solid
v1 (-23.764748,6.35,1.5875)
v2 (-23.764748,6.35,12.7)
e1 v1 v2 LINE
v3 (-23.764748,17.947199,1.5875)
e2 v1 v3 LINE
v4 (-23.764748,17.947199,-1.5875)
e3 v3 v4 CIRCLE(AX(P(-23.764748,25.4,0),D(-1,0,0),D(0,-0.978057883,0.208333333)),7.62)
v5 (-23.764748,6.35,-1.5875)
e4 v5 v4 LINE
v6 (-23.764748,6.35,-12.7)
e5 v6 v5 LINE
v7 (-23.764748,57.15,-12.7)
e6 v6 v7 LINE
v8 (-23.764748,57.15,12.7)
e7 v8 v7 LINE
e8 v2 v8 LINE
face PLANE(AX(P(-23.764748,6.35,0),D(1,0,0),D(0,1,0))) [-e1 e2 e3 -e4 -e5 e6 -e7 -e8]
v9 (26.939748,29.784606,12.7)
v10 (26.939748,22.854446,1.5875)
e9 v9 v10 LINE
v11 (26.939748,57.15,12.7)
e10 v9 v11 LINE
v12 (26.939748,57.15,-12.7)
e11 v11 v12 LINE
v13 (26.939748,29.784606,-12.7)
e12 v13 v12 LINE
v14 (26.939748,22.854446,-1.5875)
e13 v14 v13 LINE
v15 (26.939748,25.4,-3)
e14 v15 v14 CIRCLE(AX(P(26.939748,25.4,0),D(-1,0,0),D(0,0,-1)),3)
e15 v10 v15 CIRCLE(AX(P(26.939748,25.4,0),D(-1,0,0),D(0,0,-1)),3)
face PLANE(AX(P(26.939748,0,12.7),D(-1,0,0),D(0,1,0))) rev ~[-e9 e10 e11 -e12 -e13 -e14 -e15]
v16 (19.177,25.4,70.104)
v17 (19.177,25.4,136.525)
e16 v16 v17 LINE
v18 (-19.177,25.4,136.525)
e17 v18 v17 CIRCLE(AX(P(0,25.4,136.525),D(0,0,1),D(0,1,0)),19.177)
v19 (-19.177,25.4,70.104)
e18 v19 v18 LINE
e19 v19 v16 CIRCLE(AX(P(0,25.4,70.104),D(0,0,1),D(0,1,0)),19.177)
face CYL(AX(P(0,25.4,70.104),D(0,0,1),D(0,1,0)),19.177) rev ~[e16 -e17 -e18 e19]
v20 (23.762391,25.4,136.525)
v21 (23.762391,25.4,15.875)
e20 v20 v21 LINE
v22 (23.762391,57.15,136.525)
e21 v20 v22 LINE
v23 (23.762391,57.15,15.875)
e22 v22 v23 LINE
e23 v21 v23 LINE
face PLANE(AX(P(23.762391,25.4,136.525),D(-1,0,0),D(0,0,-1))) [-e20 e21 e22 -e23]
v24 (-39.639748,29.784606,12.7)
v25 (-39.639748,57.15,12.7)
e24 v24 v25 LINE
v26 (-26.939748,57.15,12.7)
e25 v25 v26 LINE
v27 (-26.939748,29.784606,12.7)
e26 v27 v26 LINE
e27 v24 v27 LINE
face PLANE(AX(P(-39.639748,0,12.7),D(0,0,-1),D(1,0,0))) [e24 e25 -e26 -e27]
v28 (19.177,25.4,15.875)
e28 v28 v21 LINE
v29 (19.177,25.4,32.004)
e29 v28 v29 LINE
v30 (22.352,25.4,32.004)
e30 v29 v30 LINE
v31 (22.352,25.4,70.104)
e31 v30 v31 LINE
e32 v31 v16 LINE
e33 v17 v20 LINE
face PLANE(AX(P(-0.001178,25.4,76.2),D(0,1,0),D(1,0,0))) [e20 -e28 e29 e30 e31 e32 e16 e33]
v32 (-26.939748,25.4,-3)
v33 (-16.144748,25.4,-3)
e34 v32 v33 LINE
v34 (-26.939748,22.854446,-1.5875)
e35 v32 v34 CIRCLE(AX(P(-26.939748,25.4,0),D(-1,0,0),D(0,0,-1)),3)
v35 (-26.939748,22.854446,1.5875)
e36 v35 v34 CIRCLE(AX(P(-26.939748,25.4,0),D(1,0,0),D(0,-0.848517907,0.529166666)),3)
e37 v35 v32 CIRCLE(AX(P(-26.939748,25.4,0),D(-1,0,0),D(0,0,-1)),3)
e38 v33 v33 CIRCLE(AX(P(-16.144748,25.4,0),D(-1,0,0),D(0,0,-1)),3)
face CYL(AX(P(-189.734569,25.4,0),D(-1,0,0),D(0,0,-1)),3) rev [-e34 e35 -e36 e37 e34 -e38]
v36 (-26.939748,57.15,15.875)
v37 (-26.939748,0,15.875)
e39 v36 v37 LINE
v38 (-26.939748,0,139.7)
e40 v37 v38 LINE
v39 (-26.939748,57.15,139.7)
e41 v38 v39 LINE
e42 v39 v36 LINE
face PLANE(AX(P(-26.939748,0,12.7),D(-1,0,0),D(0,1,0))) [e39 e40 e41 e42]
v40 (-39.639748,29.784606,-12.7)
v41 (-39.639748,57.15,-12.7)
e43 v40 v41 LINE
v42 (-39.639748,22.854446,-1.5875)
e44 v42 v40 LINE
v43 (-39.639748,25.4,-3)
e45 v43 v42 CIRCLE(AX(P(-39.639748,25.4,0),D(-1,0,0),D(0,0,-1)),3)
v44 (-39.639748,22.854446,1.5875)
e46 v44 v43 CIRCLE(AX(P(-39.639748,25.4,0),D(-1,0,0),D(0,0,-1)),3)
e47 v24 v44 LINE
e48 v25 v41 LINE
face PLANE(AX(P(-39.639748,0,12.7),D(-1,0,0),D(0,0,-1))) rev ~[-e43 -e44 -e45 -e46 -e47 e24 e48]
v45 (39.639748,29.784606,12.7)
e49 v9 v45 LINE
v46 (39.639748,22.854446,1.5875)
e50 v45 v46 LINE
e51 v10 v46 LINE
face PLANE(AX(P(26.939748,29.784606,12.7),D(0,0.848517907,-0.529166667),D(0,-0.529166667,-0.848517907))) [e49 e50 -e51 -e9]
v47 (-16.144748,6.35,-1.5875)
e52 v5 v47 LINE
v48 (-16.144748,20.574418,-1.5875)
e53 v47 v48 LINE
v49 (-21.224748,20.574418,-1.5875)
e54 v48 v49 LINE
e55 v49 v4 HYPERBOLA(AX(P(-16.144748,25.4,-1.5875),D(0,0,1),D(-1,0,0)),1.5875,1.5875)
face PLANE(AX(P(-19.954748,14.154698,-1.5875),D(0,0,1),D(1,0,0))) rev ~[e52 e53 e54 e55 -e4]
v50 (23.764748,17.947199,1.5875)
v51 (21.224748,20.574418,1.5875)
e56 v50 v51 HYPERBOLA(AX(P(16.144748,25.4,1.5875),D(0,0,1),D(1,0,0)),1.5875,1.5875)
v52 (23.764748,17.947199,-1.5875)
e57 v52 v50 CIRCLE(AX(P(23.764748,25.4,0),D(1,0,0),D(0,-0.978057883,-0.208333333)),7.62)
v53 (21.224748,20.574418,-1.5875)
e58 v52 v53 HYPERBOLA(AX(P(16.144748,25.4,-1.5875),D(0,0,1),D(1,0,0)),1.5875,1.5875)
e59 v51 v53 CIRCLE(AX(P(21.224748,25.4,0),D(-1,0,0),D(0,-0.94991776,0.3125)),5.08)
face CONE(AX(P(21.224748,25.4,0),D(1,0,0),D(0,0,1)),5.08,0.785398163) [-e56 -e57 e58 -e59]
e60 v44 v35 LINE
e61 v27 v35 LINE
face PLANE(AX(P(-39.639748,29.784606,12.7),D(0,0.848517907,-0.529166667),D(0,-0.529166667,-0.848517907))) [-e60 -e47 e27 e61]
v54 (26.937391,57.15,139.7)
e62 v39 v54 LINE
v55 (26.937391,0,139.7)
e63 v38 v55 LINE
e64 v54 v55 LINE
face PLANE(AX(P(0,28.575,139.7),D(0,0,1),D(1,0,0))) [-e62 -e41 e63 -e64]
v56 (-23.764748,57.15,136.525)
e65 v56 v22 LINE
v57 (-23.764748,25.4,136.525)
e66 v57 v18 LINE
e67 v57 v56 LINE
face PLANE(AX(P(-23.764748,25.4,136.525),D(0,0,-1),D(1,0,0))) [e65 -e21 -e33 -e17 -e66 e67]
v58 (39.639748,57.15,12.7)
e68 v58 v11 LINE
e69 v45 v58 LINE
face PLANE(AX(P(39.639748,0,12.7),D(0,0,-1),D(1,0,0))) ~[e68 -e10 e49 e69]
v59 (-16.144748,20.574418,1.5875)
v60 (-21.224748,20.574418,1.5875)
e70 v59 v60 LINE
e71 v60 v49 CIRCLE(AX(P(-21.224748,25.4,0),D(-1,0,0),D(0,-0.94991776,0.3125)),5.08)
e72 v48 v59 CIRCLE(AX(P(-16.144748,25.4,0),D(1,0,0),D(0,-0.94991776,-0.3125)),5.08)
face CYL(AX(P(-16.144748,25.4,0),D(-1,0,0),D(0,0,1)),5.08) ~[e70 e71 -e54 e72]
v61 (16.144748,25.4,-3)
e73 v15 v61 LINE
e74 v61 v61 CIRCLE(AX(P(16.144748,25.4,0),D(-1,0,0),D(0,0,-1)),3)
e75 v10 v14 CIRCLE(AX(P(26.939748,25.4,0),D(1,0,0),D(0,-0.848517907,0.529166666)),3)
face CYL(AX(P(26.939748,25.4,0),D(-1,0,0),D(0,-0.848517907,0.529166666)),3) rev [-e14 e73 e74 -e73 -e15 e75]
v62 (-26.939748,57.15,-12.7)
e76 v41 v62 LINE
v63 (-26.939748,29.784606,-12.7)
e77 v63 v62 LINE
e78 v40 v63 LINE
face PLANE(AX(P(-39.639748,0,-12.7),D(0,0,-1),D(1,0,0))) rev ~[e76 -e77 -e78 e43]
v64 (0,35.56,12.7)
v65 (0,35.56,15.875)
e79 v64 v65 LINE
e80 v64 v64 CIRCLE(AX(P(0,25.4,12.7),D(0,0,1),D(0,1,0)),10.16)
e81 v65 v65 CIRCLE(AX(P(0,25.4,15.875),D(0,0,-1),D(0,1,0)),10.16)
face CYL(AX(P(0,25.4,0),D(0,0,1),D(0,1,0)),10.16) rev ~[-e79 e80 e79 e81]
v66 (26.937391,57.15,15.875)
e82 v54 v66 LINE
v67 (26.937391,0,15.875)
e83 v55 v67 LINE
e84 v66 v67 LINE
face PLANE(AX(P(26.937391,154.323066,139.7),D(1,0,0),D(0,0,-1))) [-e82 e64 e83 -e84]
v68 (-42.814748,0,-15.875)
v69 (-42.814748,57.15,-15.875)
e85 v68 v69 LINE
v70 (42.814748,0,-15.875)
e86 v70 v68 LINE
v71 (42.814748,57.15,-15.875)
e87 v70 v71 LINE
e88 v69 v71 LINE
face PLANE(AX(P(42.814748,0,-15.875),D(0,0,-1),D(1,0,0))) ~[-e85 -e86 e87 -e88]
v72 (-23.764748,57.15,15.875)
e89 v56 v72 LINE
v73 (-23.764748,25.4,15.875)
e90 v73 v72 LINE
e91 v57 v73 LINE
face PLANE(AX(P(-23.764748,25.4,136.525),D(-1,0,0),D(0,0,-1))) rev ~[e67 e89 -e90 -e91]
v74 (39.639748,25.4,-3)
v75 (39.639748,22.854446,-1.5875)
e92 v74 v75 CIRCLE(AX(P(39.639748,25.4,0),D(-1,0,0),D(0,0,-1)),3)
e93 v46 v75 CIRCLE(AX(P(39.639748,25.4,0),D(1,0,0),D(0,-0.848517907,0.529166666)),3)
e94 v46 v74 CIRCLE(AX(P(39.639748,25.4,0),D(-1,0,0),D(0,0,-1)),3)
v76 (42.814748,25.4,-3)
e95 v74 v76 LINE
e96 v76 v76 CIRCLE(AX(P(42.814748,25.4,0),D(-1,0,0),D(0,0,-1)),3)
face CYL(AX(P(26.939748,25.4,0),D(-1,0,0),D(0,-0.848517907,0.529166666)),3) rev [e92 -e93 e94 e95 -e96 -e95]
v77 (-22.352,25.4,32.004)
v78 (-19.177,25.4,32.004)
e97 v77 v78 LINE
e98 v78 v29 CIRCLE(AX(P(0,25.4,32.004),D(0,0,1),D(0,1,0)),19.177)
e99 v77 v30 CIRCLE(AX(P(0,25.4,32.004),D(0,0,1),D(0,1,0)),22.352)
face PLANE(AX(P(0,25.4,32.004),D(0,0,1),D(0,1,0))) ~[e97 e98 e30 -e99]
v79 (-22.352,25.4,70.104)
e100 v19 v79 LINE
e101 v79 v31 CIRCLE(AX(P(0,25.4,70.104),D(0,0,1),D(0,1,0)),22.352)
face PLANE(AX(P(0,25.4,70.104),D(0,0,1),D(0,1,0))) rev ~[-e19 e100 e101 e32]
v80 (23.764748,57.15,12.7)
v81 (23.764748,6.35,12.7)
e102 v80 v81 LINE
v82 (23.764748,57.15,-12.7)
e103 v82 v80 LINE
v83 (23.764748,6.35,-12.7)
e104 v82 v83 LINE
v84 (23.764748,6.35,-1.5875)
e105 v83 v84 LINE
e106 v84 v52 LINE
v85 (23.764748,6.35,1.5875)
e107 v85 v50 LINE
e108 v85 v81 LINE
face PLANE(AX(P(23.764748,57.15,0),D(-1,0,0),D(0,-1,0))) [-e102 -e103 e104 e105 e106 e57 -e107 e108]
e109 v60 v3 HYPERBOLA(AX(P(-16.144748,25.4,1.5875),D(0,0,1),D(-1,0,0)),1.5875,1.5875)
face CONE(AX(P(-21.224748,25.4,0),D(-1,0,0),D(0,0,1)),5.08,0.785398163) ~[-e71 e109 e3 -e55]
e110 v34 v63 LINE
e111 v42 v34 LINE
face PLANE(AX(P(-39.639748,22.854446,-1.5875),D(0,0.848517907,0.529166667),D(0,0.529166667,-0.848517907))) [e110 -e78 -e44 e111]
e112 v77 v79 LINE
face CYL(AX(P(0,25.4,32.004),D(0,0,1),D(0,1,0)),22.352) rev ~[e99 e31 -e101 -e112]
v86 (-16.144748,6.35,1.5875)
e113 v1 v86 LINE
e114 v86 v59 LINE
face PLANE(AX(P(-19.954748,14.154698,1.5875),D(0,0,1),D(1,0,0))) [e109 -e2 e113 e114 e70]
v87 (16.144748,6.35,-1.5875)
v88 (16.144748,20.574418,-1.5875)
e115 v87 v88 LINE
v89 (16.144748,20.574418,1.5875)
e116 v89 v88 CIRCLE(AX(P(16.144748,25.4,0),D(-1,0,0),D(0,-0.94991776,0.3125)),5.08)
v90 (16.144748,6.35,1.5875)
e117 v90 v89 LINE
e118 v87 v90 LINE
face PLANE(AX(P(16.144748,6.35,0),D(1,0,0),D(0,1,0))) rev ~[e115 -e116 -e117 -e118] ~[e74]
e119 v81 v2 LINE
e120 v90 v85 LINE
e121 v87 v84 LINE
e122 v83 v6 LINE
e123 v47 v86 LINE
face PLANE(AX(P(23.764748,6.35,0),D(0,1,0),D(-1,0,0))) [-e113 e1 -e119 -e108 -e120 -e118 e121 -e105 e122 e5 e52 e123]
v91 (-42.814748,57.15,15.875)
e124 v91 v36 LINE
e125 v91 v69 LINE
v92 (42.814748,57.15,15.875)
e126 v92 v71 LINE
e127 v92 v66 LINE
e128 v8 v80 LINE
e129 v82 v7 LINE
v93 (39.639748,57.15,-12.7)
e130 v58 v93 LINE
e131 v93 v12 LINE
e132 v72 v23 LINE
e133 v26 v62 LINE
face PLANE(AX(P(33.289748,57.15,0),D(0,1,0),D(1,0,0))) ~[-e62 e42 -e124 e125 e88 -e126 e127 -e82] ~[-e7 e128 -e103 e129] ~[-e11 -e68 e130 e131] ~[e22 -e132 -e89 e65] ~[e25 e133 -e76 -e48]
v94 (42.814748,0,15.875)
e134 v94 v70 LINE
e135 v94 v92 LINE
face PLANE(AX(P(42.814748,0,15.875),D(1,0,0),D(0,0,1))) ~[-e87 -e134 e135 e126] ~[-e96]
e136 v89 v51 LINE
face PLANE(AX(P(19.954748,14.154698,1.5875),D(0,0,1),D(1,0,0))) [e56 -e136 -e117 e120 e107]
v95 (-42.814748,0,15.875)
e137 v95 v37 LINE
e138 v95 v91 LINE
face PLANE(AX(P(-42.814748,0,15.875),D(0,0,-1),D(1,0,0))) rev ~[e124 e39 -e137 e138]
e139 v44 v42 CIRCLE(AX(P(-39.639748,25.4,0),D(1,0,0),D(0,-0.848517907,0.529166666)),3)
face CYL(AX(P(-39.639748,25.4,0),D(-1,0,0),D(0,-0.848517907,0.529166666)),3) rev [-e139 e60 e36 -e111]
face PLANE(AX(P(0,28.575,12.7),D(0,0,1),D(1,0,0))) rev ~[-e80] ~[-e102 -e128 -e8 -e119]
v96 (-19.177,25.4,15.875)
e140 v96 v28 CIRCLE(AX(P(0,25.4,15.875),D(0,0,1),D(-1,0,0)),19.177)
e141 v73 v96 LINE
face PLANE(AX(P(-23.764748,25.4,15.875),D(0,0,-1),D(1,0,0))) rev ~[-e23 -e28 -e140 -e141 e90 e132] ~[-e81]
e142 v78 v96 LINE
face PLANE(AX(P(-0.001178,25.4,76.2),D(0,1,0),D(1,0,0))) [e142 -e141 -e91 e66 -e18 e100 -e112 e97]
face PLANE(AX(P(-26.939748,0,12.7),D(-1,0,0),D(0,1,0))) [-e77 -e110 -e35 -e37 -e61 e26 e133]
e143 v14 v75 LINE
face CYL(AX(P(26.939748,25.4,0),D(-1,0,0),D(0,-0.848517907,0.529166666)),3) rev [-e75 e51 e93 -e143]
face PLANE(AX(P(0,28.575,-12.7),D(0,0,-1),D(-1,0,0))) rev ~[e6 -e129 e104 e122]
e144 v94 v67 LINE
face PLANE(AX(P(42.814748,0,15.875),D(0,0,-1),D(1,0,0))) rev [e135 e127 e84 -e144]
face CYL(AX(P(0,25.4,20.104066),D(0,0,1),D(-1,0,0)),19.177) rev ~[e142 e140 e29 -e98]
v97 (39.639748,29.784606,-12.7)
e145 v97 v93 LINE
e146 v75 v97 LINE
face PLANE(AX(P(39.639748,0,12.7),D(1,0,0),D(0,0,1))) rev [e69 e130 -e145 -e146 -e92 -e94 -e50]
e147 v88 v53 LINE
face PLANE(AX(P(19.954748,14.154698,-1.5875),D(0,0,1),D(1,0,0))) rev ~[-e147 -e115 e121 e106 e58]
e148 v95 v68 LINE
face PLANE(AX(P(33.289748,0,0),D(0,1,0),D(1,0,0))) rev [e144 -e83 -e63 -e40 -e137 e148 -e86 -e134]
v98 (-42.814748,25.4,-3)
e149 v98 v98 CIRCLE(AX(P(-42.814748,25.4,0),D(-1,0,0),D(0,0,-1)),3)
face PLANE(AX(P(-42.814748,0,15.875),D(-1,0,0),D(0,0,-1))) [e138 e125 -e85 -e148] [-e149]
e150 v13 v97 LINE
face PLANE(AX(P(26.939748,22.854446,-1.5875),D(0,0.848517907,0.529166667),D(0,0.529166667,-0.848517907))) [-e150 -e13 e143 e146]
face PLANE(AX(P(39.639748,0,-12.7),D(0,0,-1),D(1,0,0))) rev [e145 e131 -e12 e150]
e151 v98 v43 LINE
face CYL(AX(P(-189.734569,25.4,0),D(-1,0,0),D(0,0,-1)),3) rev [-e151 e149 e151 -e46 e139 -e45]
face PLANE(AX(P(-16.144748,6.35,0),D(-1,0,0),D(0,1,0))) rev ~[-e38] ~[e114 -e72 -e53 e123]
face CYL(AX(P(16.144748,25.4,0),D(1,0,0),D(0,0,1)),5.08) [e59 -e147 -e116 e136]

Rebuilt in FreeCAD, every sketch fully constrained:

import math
import FreeCAD as App
import Part
import Sketcher
Q = App.Units.Quantity

doc = App.newDocument("Part")
body = doc.addObject("PartDesign::Body", "Body")

sketch1 = doc.addObject("Sketcher::SketchObject", "Sketch")
body.addObject(sketch1)
sketch1.AttachmentSupport = (doc.XY_Plane, [""])
sketch1.MapMode = "FlatFace"
sketch1.addGeometry(Part.LineSegment(App.Vector(-26.9, 0, 0), App.Vector(26.9, 0, 0)), False)
sketch1.addGeometry(Part.LineSegment(App.Vector(26.9, 0, 0), App.Vector(26.9, 57.1, 0)), False)
sketch1.addGeometry(Part.LineSegment(App.Vector(26.9, 57.1, 0), App.Vector(23.8, 57.1, 0)), False)
sketch1.addGeometry(Part.LineSegment(App.Vector(23.8, 57.1, 0), App.Vector(23.8, 6.3, 0)), False)
sketch1.addGeometry(Part.LineSegment(App.Vector(23.8, 6.3, 0), App.Vector(-23.8, 6.3, 0)), False)
sketch1.addGeometry(Part.LineSegment(App.Vector(-23.8, 6.3, 0), App.Vector(-23.8, 57.1, 0)), False)
sketch1.addGeometry(Part.LineSegment(App.Vector(-23.8, 57.1, 0), App.Vector(-26.9, 57.1, 0)), False)
sketch1.addGeometry(Part.LineSegment(App.Vector(-26.9, 57.1, 0), App.Vector(-26.9, 0, 0)), False)
sketch1.addConstraint(Sketcher.Constraint("Coincident", 0, 2, 1, 1))
sketch1.addConstraint(Sketcher.Constraint("Coincident", 1, 2, 2, 1))
sketch1.addConstraint(Sketcher.Constraint("Coincident", 2, 2, 3, 1))
sketch1.addConstraint(Sketcher.Constraint("Coincident", 3, 2, 4, 1))
sketch1.addConstraint(Sketcher.Constraint("Coincident", 4, 2, 5, 1))
sketch1.addConstraint(Sketcher.Constraint("Coincident", 5, 2, 6, 1))
sketch1.addConstraint(Sketcher.Constraint("Coincident", 6, 2, 7, 1))
sketch1.addConstraint(Sketcher.Constraint("Coincident", 7, 2, 0, 1))
sketch1.addConstraint(Sketcher.Constraint("Horizontal", 0))
sketch1.addConstraint(Sketcher.Constraint("Vertical", 1))
sketch1.addConstraint(Sketcher.Constraint("Horizontal", 2))
sketch1.addConstraint(Sketcher.Constraint("Vertical", 3))
sketch1.addConstraint(Sketcher.Constraint("Horizontal", 4))
sketch1.addConstraint(Sketcher.Constraint("Vertical", 5))
sketch1.addConstraint(Sketcher.Constraint("Horizontal", 6))
sketch1.addConstraint(Sketcher.Constraint("Vertical", 7))
sketch1.addConstraint(Sketcher.Constraint("Symmetric", 0, 2, 7, 2, -1, 1))
sketch1.addConstraint(Sketcher.Constraint("Symmetric", 2, 2, 5, 2, -2))
sketch1.addConstraint(Sketcher.Constraint("DistanceY", 3, 2, 3, 1, Q("2 in")))
sketch1.addConstraint(Sketcher.Constraint("DistanceY", 1, 1, 1, 2, Q("2.25 in")))
sketch1.addConstraint(Sketcher.Constraint("DistanceX", 2, 2, 2, 1, Q("0.125 in")))
sketch1.addConstraint(Sketcher.Constraint("DistanceX", 0, 1, 0, 2, 53.879496))
pad1 = doc.addObject("PartDesign::Pad", "Pad")
body.addObject(pad1)
pad1.Profile = sketch1
pad1.Length = Q("1 in")
pad1.Midplane = True

sketch2 = doc.addObject("Sketcher::SketchObject", "Sketch001")
body.addObject(sketch2)
sketch2.AttachmentSupport = (doc.XY_Plane, [""])
sketch2.MapMode = "FlatFace"
sketch2.AttachmentOffset = App.Placement(App.Vector(0, 0, -0.5 * 25.4), App.Rotation())
sketch2.addGeometry(Part.LineSegment(App.Vector(27, 57, 0), App.Vector(27, 0, 0)), False)
sketch2.addGeometry(Part.LineSegment(App.Vector(27, 0, 0), App.Vector(-27, 0, 0)), False)
sketch2.addGeometry(Part.LineSegment(App.Vector(-27, 0, 0), App.Vector(-27, 57, 0)), False)
sketch2.addGeometry(Part.LineSegment(App.Vector(-27, 57, 0), App.Vector(27, 57, 0)), False)
sketch2.addConstraint(Sketcher.Constraint("Coincident", 0, 2, 1, 1))
sketch2.addConstraint(Sketcher.Constraint("Coincident", 1, 2, 2, 1))
sketch2.addConstraint(Sketcher.Constraint("Coincident", 2, 2, 3, 1))
sketch2.addConstraint(Sketcher.Constraint("Coincident", 3, 2, 0, 1))
sketch2.addConstraint(Sketcher.Constraint("Vertical", 0))
sketch2.addConstraint(Sketcher.Constraint("Horizontal", 1))
sketch2.addConstraint(Sketcher.Constraint("Vertical", 2))
sketch2.addConstraint(Sketcher.Constraint("Horizontal", 3))
sketch2.addConstraint(Sketcher.Constraint("Symmetric", 0, 2, 1, 2, -1, 1))
sketch2.addConstraint(Sketcher.Constraint("DistanceY", 0, 2, 0, 1, Q("2.25 in")))
sketch2.addConstraint(Sketcher.Constraint("DistanceX", 1, 2, 1, 1, 53.879496))
pad2 = doc.addObject("PartDesign::Pad", "Pad001")
body.addObject(pad2)
pad2.Profile = sketch2
pad2.Length = Q("0.125 in")
pad2.Reversed = True

sketch3 = doc.addObject("Sketcher::SketchObject", "Sketch002")
body.addObject(sketch3)
sketch3.AttachmentSupport = (doc.XY_Plane, [""])
sketch3.MapMode = "FlatFace"
sketch3.addGeometry(Part.LineSegment(App.Vector(-23.8, 25.4, 0), App.Vector(-16.1, 25.4, 0)), False)
sketch3.addGeometry(Part.LineSegment(App.Vector(-16.1, 25.4, 0), App.Vector(-16.1, 30.5, 0)), False)
sketch3.addGeometry(Part.LineSegment(App.Vector(-16.1, 30.5, 0), App.Vector(-21.2, 30.5, 0)), False)
sketch3.addGeometry(Part.LineSegment(App.Vector(-21.2, 30.5, 0), App.Vector(-23.8, 33, 0)), False)
sketch3.addGeometry(Part.LineSegment(App.Vector(-23.8, 33, 0), App.Vector(-23.8, 25.4, 0)), False)
sketch3.addGeometry(Part.LineSegment(App.Vector(23.8, 25.4, 0), App.Vector(23.8, 33, 0)), False)
sketch3.addGeometry(Part.LineSegment(App.Vector(23.8, 33, 0), App.Vector(21.2, 30.5, 0)), False)
sketch3.addGeometry(Part.LineSegment(App.Vector(21.2, 30.5, 0), App.Vector(16.1, 30.5, 0)), False)
sketch3.addGeometry(Part.LineSegment(App.Vector(16.1, 30.5, 0), App.Vector(16.1, 25.4, 0)), False)
sketch3.addGeometry(Part.LineSegment(App.Vector(16.1, 25.4, 0), App.Vector(23.8, 25.4, 0)), False)
sketch3.addGeometry(Part.LineSegment(App.Vector(-23.8, 25.4, 0), App.Vector(23.8, 25.4, 0)), True)
sketch3.addConstraint(Sketcher.Constraint("Coincident", 0, 2, 1, 1))
sketch3.addConstraint(Sketcher.Constraint("Coincident", 1, 2, 2, 1))
sketch3.addConstraint(Sketcher.Constraint("Coincident", 2, 2, 3, 1))
sketch3.addConstraint(Sketcher.Constraint("Coincident", 3, 2, 4, 1))
sketch3.addConstraint(Sketcher.Constraint("Coincident", 4, 2, 0, 1))
sketch3.addConstraint(Sketcher.Constraint("Coincident", 5, 2, 6, 1))
sketch3.addConstraint(Sketcher.Constraint("Coincident", 6, 2, 7, 1))
sketch3.addConstraint(Sketcher.Constraint("Coincident", 7, 2, 8, 1))
sketch3.addConstraint(Sketcher.Constraint("Coincident", 8, 2, 9, 1))
sketch3.addConstraint(Sketcher.Constraint("Coincident", 9, 2, 5, 1))
sketch3.addConstraint(Sketcher.Constraint("Horizontal", 0))
sketch3.addConstraint(Sketcher.Constraint("Vertical", 1))
sketch3.addConstraint(Sketcher.Constraint("Horizontal", 2))
sketch3.addConstraint(Sketcher.Constraint("Vertical", 4))
sketch3.addConstraint(Sketcher.Constraint("Vertical", 5))
sketch3.addConstraint(Sketcher.Constraint("Horizontal", 7))
sketch3.addConstraint(Sketcher.Constraint("Vertical", 8))
sketch3.addConstraint(Sketcher.Constraint("Horizontal", 9))
sketch3.addConstraint(Sketcher.Constraint("Horizontal", 10))
sketch3.addConstraint(Sketcher.Constraint("Coincident", 10, 1, 4, 2))
sketch3.addConstraint(Sketcher.Constraint("Coincident", 10, 2, 9, 2))
sketch3.addConstraint(Sketcher.Constraint("Symmetric", 3, 2, 5, 2, -2))
sketch3.addConstraint(Sketcher.Constraint("Symmetric", 2, 2, 6, 2, -2))
sketch3.addConstraint(Sketcher.Constraint("Perpendicular", 3, 6))
sketch3.addConstraint(Sketcher.Constraint("Equal", 2, 7))
sketch3.addConstraint(Sketcher.Constraint("Equal", 7, 1))
sketch3.addConstraint(Sketcher.Constraint("DistanceX", 0, 1, 0, 2, Q("0.3 in")))
sketch3.addConstraint(Sketcher.Constraint("DistanceX", 2, 2, 2, 1, Q("0.2 in")))
sketch3.addConstraint(Sketcher.Constraint("DistanceY", -1, 1, 0, 2, Q("1 in")))
sketch3.addConstraint(Sketcher.Constraint("DistanceX", 10, 1, 10, 2, 47.529496))
revolution = doc.addObject("PartDesign::Revolution", "Revolution")
body.addObject(revolution)
revolution.Profile = sketch3
revolution.ReferenceAxis = (sketch3, ["Axis0"])
revolution.Angle = 360

sketch4 = doc.addObject("Sketcher::SketchObject", "Sketch003")
body.addObject(sketch4)
sketch4.AttachmentSupport = (doc.YZ_Plane, [""])
sketch4.MapMode = "FlatFace"
sketch4.addGeometry(Part.Circle(App.Vector(25.4, 0, 0), App.Vector(0, 0, 1), 3), False)
sketch4.addConstraint(Sketcher.Constraint("PointOnObject", 0, 3, -1))
sketch4.addConstraint(Sketcher.Constraint("DistanceX", -1, 1, 0, 3, Q("1 in")))
sketch4.addConstraint(Sketcher.Constraint("Diameter", 0, 6.0))
pocket1 = doc.addObject("PartDesign::Pocket", "Pocket")
body.addObject(pocket1)
pocket1.Profile = sketch4
pocket1.Type = "ThroughAll"
pocket1.Midplane = True

sketch5 = doc.addObject("Sketcher::SketchObject", "Sketch004")
body.addObject(sketch5)
sketch5.AttachmentSupport = (doc.XZ_Plane, [""])
sketch5.MapMode = "FlatFace"
sketch5.addGeometry(Part.LineSegment(App.Vector(-26.9, -15.9, 0), App.Vector(-26.9, -41.3, 0)), False)
sketch5.addGeometry(Part.LineSegment(App.Vector(-26.9, -41.3, 0), App.Vector(26.9, -41.3, 0)), False)
sketch5.addGeometry(Part.LineSegment(App.Vector(26.9, -41.3, 0), App.Vector(26.9, -15.9, 0)), False)
sketch5.addGeometry(Part.LineSegment(App.Vector(26.9, -15.9, 0), App.Vector(-26.9, -15.9, 0)), False)
sketch5.addGeometry(Part.Circle(App.Vector(-17.5, -28.6, 0), App.Vector(0, 0, 1), 3.5), False)
sketch5.addGeometry(Part.Circle(App.Vector(7.9, -28.6, 0), App.Vector(0, 0, 1), 3.5), False)
sketch5.addConstraint(Sketcher.Constraint("Coincident", 0, 2, 1, 1))
sketch5.addConstraint(Sketcher.Constraint("Coincident", 1, 2, 2, 1))
sketch5.addConstraint(Sketcher.Constraint("Coincident", 2, 2, 3, 1))
sketch5.addConstraint(Sketcher.Constraint("Coincident", 3, 2, 0, 1))
sketch5.addConstraint(Sketcher.Constraint("Vertical", 0))
sketch5.addConstraint(Sketcher.Constraint("Horizontal", 1))
sketch5.addConstraint(Sketcher.Constraint("Vertical", 2))
sketch5.addConstraint(Sketcher.Constraint("Horizontal", 3))
sketch5.addConstraint(Sketcher.Constraint("Equal", 4, 5))
sketch5.addConstraint(Sketcher.Constraint("Horizontal", 4, 3, 5, 3))
sketch5.addConstraint(Sketcher.Constraint("DistanceY", 0, 2, 0, 1, Q("1 in")))
sketch5.addConstraint(Sketcher.Constraint("Diameter", 4, Q("0.275 in")))
sketch5.addConstraint(Sketcher.Constraint("DistanceX", 4, 3, 5, 3, Q("1 in")))
sketch5.addConstraint(Sketcher.Constraint("DistanceY", 0, 2, 4, 3, Q("0.5 in")))
sketch5.addConstraint(Sketcher.Constraint("DistanceX", 5, 3, 1, 2, Q("0.75 in")))
sketch5.addConstraint(Sketcher.Constraint("DistanceY", 4, 3, -1, 1, Q("1.125 in")))
sketch5.addConstraint(Sketcher.Constraint("DistanceX", 1, 1, 1, 2, 53.879496))
sketch5.addConstraint(Sketcher.Constraint("DistanceX", 0, 2, -1, 1, 26.939748))
pad3 = doc.addObject("PartDesign::Pad", "Pad002")
body.addObject(pad3)
pad3.Profile = sketch5
pad3.Length = Q("0.25 in")
pad3.Reversed = True

sketch6 = doc.addObject("Sketcher::SketchObject", "Sketch005")
body.addObject(sketch6)
sketch6.AttachmentSupport = (doc.XY_Plane, [""])
sketch6.MapMode = "FlatFace"
sketch6.addGeometry(Part.LineSegment(App.Vector(-24, 22, 0), App.Vector(-24, 6, 0)), False)
sketch6.addGeometry(Part.LineSegment(App.Vector(-24, 6, 0), App.Vector(-16, 6, 0)), False)
sketch6.addGeometry(Part.LineSegment(App.Vector(-16, 6, 0), App.Vector(-16, 22, 0)), False)
sketch6.addGeometry(Part.LineSegment(App.Vector(-16, 22, 0), App.Vector(-24, 22, 0)), False)
sketch6.addGeometry(Part.LineSegment(App.Vector(16, 22, 0), App.Vector(16, 6, 0)), False)
sketch6.addGeometry(Part.LineSegment(App.Vector(16, 6, 0), App.Vector(24, 6, 0)), False)
sketch6.addGeometry(Part.LineSegment(App.Vector(24, 6, 0), App.Vector(24, 22, 0)), False)
sketch6.addGeometry(Part.LineSegment(App.Vector(24, 22, 0), App.Vector(16, 22, 0)), False)
sketch6.addConstraint(Sketcher.Constraint("Coincident", 0, 2, 1, 1))
sketch6.addConstraint(Sketcher.Constraint("Coincident", 1, 2, 2, 1))
sketch6.addConstraint(Sketcher.Constraint("Coincident", 2, 2, 3, 1))
sketch6.addConstraint(Sketcher.Constraint("Coincident", 3, 2, 0, 1))
sketch6.addConstraint(Sketcher.Constraint("Coincident", 4, 2, 5, 1))
sketch6.addConstraint(Sketcher.Constraint("Coincident", 5, 2, 6, 1))
sketch6.addConstraint(Sketcher.Constraint("Coincident", 6, 2, 7, 1))
sketch6.addConstraint(Sketcher.Constraint("Coincident", 7, 2, 4, 1))
sketch6.addConstraint(Sketcher.Constraint("Vertical", 0))
sketch6.addConstraint(Sketcher.Constraint("Horizontal", 1))
sketch6.addConstraint(Sketcher.Constraint("Vertical", 2))
sketch6.addConstraint(Sketcher.Constraint("Horizontal", 3))
sketch6.addConstraint(Sketcher.Constraint("Vertical", 4))
sketch6.addConstraint(Sketcher.Constraint("Horizontal", 5))
sketch6.addConstraint(Sketcher.Constraint("Vertical", 6))
sketch6.addConstraint(Sketcher.Constraint("Horizontal", 7))
sketch6.addConstraint(Sketcher.Constraint("Symmetric", 1, 2, 4, 2, -2))
sketch6.addConstraint(Sketcher.Constraint("Symmetric", 3, 2, 6, 2, -2))
sketch6.addConstraint(Sketcher.Constraint("DistanceX", 1, 1, 1, 2, Q("0.3 in")))
sketch6.addConstraint(Sketcher.Constraint("DistanceY", -1, 1, 0, 2, Q("0.25 in")))
sketch6.addConstraint(Sketcher.Constraint("DistanceY", 0, 2, 0, 1, 15.609397))
sketch6.addConstraint(Sketcher.Constraint("DistanceX", 0, 2, -1, 1, 23.764748))
pad4 = doc.addObject("PartDesign::Pad", "Pad003")
body.addObject(pad4)
pad4.Profile = sketch6
pad4.Length = Q("0.125 in")
pad4.Midplane = True

sketch7 = doc.addObject("Sketcher::SketchObject", "Sketch006")
body.addObject(sketch7)
sketch7.AttachmentSupport = (doc.XY_Plane, [""])
sketch7.MapMode = "FlatFace"
sketch7.AttachmentOffset = App.Placement(App.Vector(0, 0, 0.5 * 25.4), App.Rotation())
sketch7.addGeometry(Part.LineSegment(App.Vector(-27, 57, 0), App.Vector(-27, 0, 0)), False)
sketch7.addGeometry(Part.LineSegment(App.Vector(-27, 0, 0), App.Vector(27, 0, 0)), False)
sketch7.addGeometry(Part.LineSegment(App.Vector(27, 0, 0), App.Vector(27, 57, 0)), False)
sketch7.addGeometry(Part.LineSegment(App.Vector(27, 57, 0), App.Vector(-27, 57, 0)), False)
sketch7.addConstraint(Sketcher.Constraint("Coincident", 0, 2, 1, 1))
sketch7.addConstraint(Sketcher.Constraint("Coincident", 1, 2, 2, 1))
sketch7.addConstraint(Sketcher.Constraint("Coincident", 2, 2, 3, 1))
sketch7.addConstraint(Sketcher.Constraint("Coincident", 3, 2, 0, 1))
sketch7.addConstraint(Sketcher.Constraint("Vertical", 0))
sketch7.addConstraint(Sketcher.Constraint("Horizontal", 1))
sketch7.addConstraint(Sketcher.Constraint("Vertical", 2))
sketch7.addConstraint(Sketcher.Constraint("Horizontal", 3))
sketch7.addConstraint(Sketcher.Constraint("Symmetric", 0, 2, 1, 2, -1, 1))
sketch7.addConstraint(Sketcher.Constraint("DistanceY", 0, 2, 0, 1, Q("2.25 in")))
sketch7.addConstraint(Sketcher.Constraint("DistanceX", 1, 1, 1, 2, 53.879496))
pad5 = doc.addObject("PartDesign::Pad", "Pad004")
body.addObject(pad5)
pad5.Profile = sketch7
pad5.Length = Q("5 in")

sketch8 = doc.addObject("Sketcher::SketchObject", "Sketch007")
body.addObject(sketch8)
sketch8.AttachmentSupport = (doc.YZ_Plane, [""])
sketch8.MapMode = "FlatFace"
sketch8.addGeometry(Part.LineSegment(App.Vector(47.8, 70.1, 0), App.Vector(44.6, 70.1, 0)), False)
sketch8.addGeometry(Part.LineSegment(App.Vector(44.6, 70.1, 0), App.Vector(44.6, 136.5, 0)), False)
sketch8.addGeometry(Part.LineSegment(App.Vector(44.6, 136.5, 0), App.Vector(25.4, 136.5, 0)), False)
sketch8.addGeometry(Part.LineSegment(App.Vector(25.4, 136.5, 0), App.Vector(25.4, 0, 0)), False)
sketch8.addGeometry(Part.LineSegment(App.Vector(25.4, 0, 0), App.Vector(35.6, 0, 0)), False)
sketch8.addGeometry(Part.LineSegment(App.Vector(35.6, 0, 0), App.Vector(35.6, 20.1, 0)), False)
sketch8.addGeometry(Part.LineSegment(App.Vector(35.6, 20.1, 0), App.Vector(44.6, 20.1, 0)), False)
sketch8.addGeometry(Part.LineSegment(App.Vector(44.6, 20.1, 0), App.Vector(44.6, 32, 0)), False)
sketch8.addGeometry(Part.LineSegment(App.Vector(44.6, 32, 0), App.Vector(47.8, 32, 0)), False)
sketch8.addGeometry(Part.LineSegment(App.Vector(47.8, 32, 0), App.Vector(47.8, 70.1, 0)), False)
sketch8.addGeometry(Part.LineSegment(App.Vector(25.4, 0, 0), App.Vector(25.4, 136.5, 0)), True)
sketch8.addConstraint(Sketcher.Constraint("Coincident", 0, 2, 1, 1))
sketch8.addConstraint(Sketcher.Constraint("Coincident", 1, 2, 2, 1))
sketch8.addConstraint(Sketcher.Constraint("Coincident", 2, 2, 3, 1))
sketch8.addConstraint(Sketcher.Constraint("Coincident", 3, 2, 4, 1))
sketch8.addConstraint(Sketcher.Constraint("Coincident", 4, 2, 5, 1))
sketch8.addConstraint(Sketcher.Constraint("Coincident", 5, 2, 6, 1))
sketch8.addConstraint(Sketcher.Constraint("Coincident", 6, 2, 7, 1))
sketch8.addConstraint(Sketcher.Constraint("Coincident", 7, 2, 8, 1))
sketch8.addConstraint(Sketcher.Constraint("Coincident", 8, 2, 9, 1))
sketch8.addConstraint(Sketcher.Constraint("Coincident", 9, 2, 0, 1))
sketch8.addConstraint(Sketcher.Constraint("Horizontal", 0))
sketch8.addConstraint(Sketcher.Constraint("Vertical", 1))
sketch8.addConstraint(Sketcher.Constraint("Horizontal", 2))
sketch8.addConstraint(Sketcher.Constraint("Vertical", 3))
sketch8.addConstraint(Sketcher.Constraint("Horizontal", 4))
sketch8.addConstraint(Sketcher.Constraint("Vertical", 5))
sketch8.addConstraint(Sketcher.Constraint("Horizontal", 6))
sketch8.addConstraint(Sketcher.Constraint("Vertical", 7))
sketch8.addConstraint(Sketcher.Constraint("Horizontal", 8))
sketch8.addConstraint(Sketcher.Constraint("Vertical", 9))
sketch8.addConstraint(Sketcher.Constraint("Vertical", 10))
sketch8.addConstraint(Sketcher.Constraint("Coincident", 10, 1, 3, 2))
sketch8.addConstraint(Sketcher.Constraint("PointOnObject", 3, 2, -1))
sketch8.addConstraint(Sketcher.Constraint("Horizontal", 1, 2, 10, 2))
sketch8.addConstraint(Sketcher.Constraint("Vertical", 1, 2, 6, 2))
sketch8.addConstraint(Sketcher.Constraint("DistanceX", 4, 1, 4, 2, Q("0.4 in")))
sketch8.addConstraint(Sketcher.Constraint("DistanceY", 9, 1, 9, 2, Q("1.5 in")))
sketch8.addConstraint(Sketcher.Constraint("DistanceX", -1, 1, 2, 2, Q("1 in")))
sketch8.addConstraint(Sketcher.Constraint("DistanceX", 0, 2, 0, 1, Q("0.125 in")))
sketch8.addConstraint(Sketcher.Constraint("DistanceX", 2, 2, 2, 1, Q("0.755 in")))
sketch8.addConstraint(Sketcher.Constraint("DistanceY", 1, 1, 1, 2, Q("2.615 in")))
sketch8.addConstraint(Sketcher.Constraint("DistanceY", 3, 2, 3, 1, Q("5.375 in")))
sketch8.addConstraint(Sketcher.Constraint("DistanceY", 5, 1, 5, 2, 20.104066))
groove = doc.addObject("PartDesign::Groove", "Groove")
body.addObject(groove)
groove.Profile = sketch8
groove.ReferenceAxis = (sketch8, ["Axis0"])
groove.Angle = 360

sketch9 = doc.addObject("Sketcher::SketchObject", "Sketch008")
body.addObject(sketch9)
sketch9.AttachmentSupport = (doc.XZ_Plane, [""])
sketch9.MapMode = "FlatFace"
sketch9.addGeometry(Part.LineSegment(App.Vector(-26.9397, 15.4709, 0), App.Vector(-26.9397, 139.7, 0)), False)
sketch9.addGeometry(Part.LineSegment(App.Vector(-26.9397, 139.7, 0), App.Vector(-26.9421, 139.7, 0)), False)
sketch9.addGeometry(Part.LineSegment(App.Vector(-26.9421, 139.7, 0), App.Vector(-26.9421, 15.4709, 0)), False)
sketch9.addGeometry(Part.LineSegment(App.Vector(-26.9421, 15.4709, 0), App.Vector(-26.9397, 15.4709, 0)), False)
sketch9.addGeometry(Part.LineSegment(App.Vector(26.9397, 15.4709, 0), App.Vector(26.9397, 139.7, 0)), False)
sketch9.addGeometry(Part.LineSegment(App.Vector(26.9397, 139.7, 0), App.Vector(26.9374, 139.7, 0)), False)
sketch9.addGeometry(Part.LineSegment(App.Vector(26.9374, 139.7, 0), App.Vector(26.9374, 15.4709, 0)), False)
sketch9.addGeometry(Part.LineSegment(App.Vector(26.9374, 15.4709, 0), App.Vector(26.9397, 15.4709, 0)), False)
sketch9.addConstraint(Sketcher.Constraint("Coincident", 0, 2, 1, 1))
sketch9.addConstraint(Sketcher.Constraint("Coincident", 1, 2, 2, 1))
sketch9.addConstraint(Sketcher.Constraint("Coincident", 2, 2, 3, 1))
sketch9.addConstraint(Sketcher.Constraint("Coincident", 3, 2, 0, 1))
sketch9.addConstraint(Sketcher.Constraint("Coincident", 4, 2, 5, 1))
sketch9.addConstraint(Sketcher.Constraint("Coincident", 5, 2, 6, 1))
sketch9.addConstraint(Sketcher.Constraint("Coincident", 6, 2, 7, 1))
sketch9.addConstraint(Sketcher.Constraint("Coincident", 7, 2, 4, 1))
sketch9.addConstraint(Sketcher.Constraint("Vertical", 0))
sketch9.addConstraint(Sketcher.Constraint("Horizontal", 1))
sketch9.addConstraint(Sketcher.Constraint("Vertical", 2))
sketch9.addConstraint(Sketcher.Constraint("Horizontal", 3))
sketch9.addConstraint(Sketcher.Constraint("Vertical", 4))
sketch9.addConstraint(Sketcher.Constraint("Horizontal", 5))
sketch9.addConstraint(Sketcher.Constraint("Vertical", 6))
sketch9.addConstraint(Sketcher.Constraint("Horizontal", 7))
sketch9.addConstraint(Sketcher.Constraint("Symmetric", 0, 2, 4, 2, -2))
sketch9.addConstraint(Sketcher.Constraint("Horizontal", 3, 2, 6, 2))
sketch9.addConstraint(Sketcher.Constraint("Equal", 3, 5))
sketch9.addConstraint(Sketcher.Constraint("DistanceY", -1, 1, 0, 2, Q("5.5 in")))
sketch9.addConstraint(Sketcher.Constraint("DistanceY", 0, 1, 0, 2, 124.229061))
sketch9.addConstraint(Sketcher.Constraint("DistanceX", 1, 2, 1, 1, 0.002357))
sketch9.addConstraint(Sketcher.Constraint("DistanceX", 0, 2, -1, 1, 26.939748))
pocket2 = doc.addObject("PartDesign::Pocket", "Pocket001")
body.addObject(pocket2)
pocket2.Profile = sketch9
pocket2.Type = "ThroughAll"
pocket2.Midplane = True

sketch10 = doc.addObject("Sketcher::SketchObject", "Sketch009")
body.addObject(sketch10)
sketch10.AttachmentSupport = (doc.XZ_Plane, [""])
sketch10.MapMode = "FlatFace"
sketch10.AttachmentOffset = App.Placement(App.Vector(0, 0, -1 * 25.4), App.Rotation())
sketch10.addGeometry(Part.LineSegment(App.Vector(-24, 16, 0), App.Vector(-24, 137, 0)), False)
sketch10.addGeometry(Part.LineSegment(App.Vector(-24, 137, 0), App.Vector(24, 137, 0)), False)
sketch10.addGeometry(Part.LineSegment(App.Vector(24, 137, 0), App.Vector(24, 16, 0)), False)
sketch10.addGeometry(Part.LineSegment(App.Vector(24, 16, 0), App.Vector(-24, 16, 0)), False)
sketch10.addConstraint(Sketcher.Constraint("Coincident", 0, 2, 1, 1))
sketch10.addConstraint(Sketcher.Constraint("Coincident", 1, 2, 2, 1))
sketch10.addConstraint(Sketcher.Constraint("Coincident", 2, 2, 3, 1))
sketch10.addConstraint(Sketcher.Constraint("Coincident", 3, 2, 0, 1))
sketch10.addConstraint(Sketcher.Constraint("Vertical", 0))
sketch10.addConstraint(Sketcher.Constraint("Horizontal", 1))
sketch10.addConstraint(Sketcher.Constraint("Vertical", 2))
sketch10.addConstraint(Sketcher.Constraint("Horizontal", 3))
sketch10.addConstraint(Sketcher.Constraint("DistanceY", 0, 1, 0, 2, Q("4.75 in")))
sketch10.addConstraint(Sketcher.Constraint("DistanceY", -1, 1, 0, 2, Q("5.375 in")))
sketch10.addConstraint(Sketcher.Constraint("DistanceX", 1, 1, 1, 2, 47.527139))
sketch10.addConstraint(Sketcher.Constraint("DistanceX", 0, 2, -1, 1, 23.764748))
pocket3 = doc.addObject("PartDesign::Pocket", "Pocket002")
body.addObject(pocket3)
pocket3.Profile = sketch10
pocket3.Length = Q("1.25 in")

sketch11 = doc.addObject("Sketcher::SketchObject", "Sketch010")
body.addObject(sketch11)
sketch11.AttachmentSupport = (doc.XY_Plane, [""])
sketch11.MapMode = "FlatFace"
sketch11.AttachmentOffset = App.Placement(App.Vector(0, 0, 20.104066), App.Rotation())
sketch11.addGeometry(Part.LineSegment(App.Vector(-10, 25, 0), App.Vector(-19, 25, 0)), False)
sketch11.addGeometry(Part.ArcOfCircle(Part.Circle(App.Vector(0, 25, 0), App.Vector(0, 0, 1), 19), math.radians(180), math.radians(360)), False)
sketch11.addGeometry(Part.LineSegment(App.Vector(19, 25, 0), App.Vector(10, 25, 0)), False)
sketch11.addGeometry(Part.ArcOfCircle(Part.Circle(App.Vector(0, 25, 0), App.Vector(0, 0, 1), 10), math.radians(180), math.radians(360)), False)
sketch11.addConstraint(Sketcher.Constraint("Coincident", 0, 2, 1, 1))
sketch11.addConstraint(Sketcher.Constraint("Coincident", 1, 2, 2, 1))
sketch11.addConstraint(Sketcher.Constraint("Coincident", 2, 2, 3, 2))
sketch11.addConstraint(Sketcher.Constraint("Coincident", 3, 1, 0, 1))
sketch11.addConstraint(Sketcher.Constraint("Horizontal", 0))
sketch11.addConstraint(Sketcher.Constraint("Horizontal", 2))
sketch11.addConstraint(Sketcher.Constraint("Coincident", 3, 3, 1, 3))
sketch11.addConstraint(Sketcher.Constraint("Symmetric", 0, 2, 1, 2, -2))
sketch11.addConstraint(Sketcher.Constraint("Horizontal", 3, 3, 0, 2))
sketch11.addConstraint(Sketcher.Constraint("Radius", 3, Q("0.4 in")))
sketch11.addConstraint(Sketcher.Constraint("DistanceY", -1, 1, 1, 3, Q("1 in")))
sketch11.addConstraint(Sketcher.Constraint("Radius", 1, Q("0.755 in")))
pocket4 = doc.addObject("PartDesign::Pocket", "Pocket003")
body.addObject(pocket4)
pocket4.Profile = sketch11
pocket4.Length = 4.229066

sketch12 = doc.addObject("Sketcher::SketchObject", "Sketch011")
body.addObject(sketch12)
sketch12.AttachmentSupport = (doc.XZ_Plane, [""])
sketch12.MapMode = "FlatFace"
sketch12.AttachmentOffset = App.Placement(App.Vector(0, 0, -0.25 * 25.4), App.Rotation())
sketch12.addGeometry(Part.LineSegment(App.Vector(-27, -41, 0), App.Vector(-27, -16, 0)), False)
sketch12.addGeometry(Part.LineSegment(App.Vector(-27, -16, 0), App.Vector(27, -16, 0)), False)
sketch12.addGeometry(Part.LineSegment(App.Vector(27, -16, 0), App.Vector(27, -41, 0)), False)
sketch12.addGeometry(Part.LineSegment(App.Vector(27, -41, 0), App.Vector(-27, -41, 0)), False)
sketch12.addConstraint(Sketcher.Constraint("Coincident", 0, 2, 1, 1))
sketch12.addConstraint(Sketcher.Constraint("Coincident", 1, 2, 2, 1))
sketch12.addConstraint(Sketcher.Constraint("Coincident", 2, 2, 3, 1))
sketch12.addConstraint(Sketcher.Constraint("Coincident", 3, 2, 0, 1))
sketch12.addConstraint(Sketcher.Constraint("Vertical", 0))
sketch12.addConstraint(Sketcher.Constraint("Horizontal", 1))
sketch12.addConstraint(Sketcher.Constraint("Vertical", 2))
sketch12.addConstraint(Sketcher.Constraint("Horizontal", 3))
sketch12.addConstraint(Sketcher.Constraint("DistanceY", 0, 1, 0, 2, Q("1 in")))
sketch12.addConstraint(Sketcher.Constraint("DistanceY", 0, 2, -1, 1, Q("0.625 in")))
sketch12.addConstraint(Sketcher.Constraint("DistanceX", 1, 1, 1, 2, 53.879496))
sketch12.addConstraint(Sketcher.Constraint("DistanceX", 0, 2, -1, 1, 26.939748))
pocket5 = doc.addObject("PartDesign::Pocket", "Pocket004")
body.addObject(pocket5)
pocket5.Profile = sketch12
pocket5.Type = "ThroughAll"
pocket5.Reversed = True

sketch13 = doc.addObject("Sketcher::SketchObject", "Sketch012")
body.addObject(sketch13)
sketch13.AttachmentSupport = (doc.XZ_Plane, [""])
sketch13.MapMode = "FlatFace"
sketch13.addGeometry(Part.LineSegment(App.Vector(-43, -16, 0), App.Vector(-43, 16, 0)), False)
sketch13.addGeometry(Part.LineSegment(App.Vector(-43, 16, 0), App.Vector(-24, 16, 0)), False)
sketch13.addGeometry(Part.LineSegment(App.Vector(-24, 16, 0), App.Vector(-24, -16, 0)), False)
sketch13.addGeometry(Part.LineSegment(App.Vector(-24, -16, 0), App.Vector(-43, -16, 0)), False)
sketch13.addGeometry(Part.LineSegment(App.Vector(-27, 13, 0), App.Vector(-40, 13, 0)), False)
sketch13.addGeometry(Part.LineSegment(App.Vector(-40, 13, 0), App.Vector(-40, -13, 0)), False)
sketch13.addGeometry(Part.LineSegment(App.Vector(-40, -13, 0), App.Vector(-27, -13, 0)), False)
sketch13.addGeometry(Part.LineSegment(App.Vector(-27, -13, 0), App.Vector(-27, 13, 0)), False)
sketch13.addConstraint(Sketcher.Constraint("Coincident", 0, 2, 1, 1))
sketch13.addConstraint(Sketcher.Constraint("Coincident", 1, 2, 2, 1))
sketch13.addConstraint(Sketcher.Constraint("Coincident", 2, 2, 3, 1))
sketch13.addConstraint(Sketcher.Constraint("Coincident", 3, 2, 0, 1))
sketch13.addConstraint(Sketcher.Constraint("Coincident", 4, 2, 5, 1))
sketch13.addConstraint(Sketcher.Constraint("Coincident", 5, 2, 6, 1))
sketch13.addConstraint(Sketcher.Constraint("Coincident", 6, 2, 7, 1))
sketch13.addConstraint(Sketcher.Constraint("Coincident", 7, 2, 4, 1))
sketch13.addConstraint(Sketcher.Constraint("Vertical", 0))
sketch13.addConstraint(Sketcher.Constraint("Horizontal", 1))
sketch13.addConstraint(Sketcher.Constraint("Vertical", 2))
sketch13.addConstraint(Sketcher.Constraint("Horizontal", 3))
sketch13.addConstraint(Sketcher.Constraint("Horizontal", 4))
sketch13.addConstraint(Sketcher.Constraint("Vertical", 5))
sketch13.addConstraint(Sketcher.Constraint("Horizontal", 6))
sketch13.addConstraint(Sketcher.Constraint("Vertical", 7))
sketch13.addConstraint(Sketcher.Constraint("DistanceY", 5, 2, 5, 1, Q("1 in")))
sketch13.addConstraint(Sketcher.Constraint("DistanceX", 4, 2, 4, 1, Q("0.5 in")))
sketch13.addConstraint(Sketcher.Constraint("DistanceX", 1, 1, 1, 2, Q("0.75 in")))
sketch13.addConstraint(Sketcher.Constraint("DistanceY", 0, 1, 0, 2, Q("1.25 in")))
sketch13.addConstraint(Sketcher.Constraint("DistanceY", -1, 1, 4, 2, Q("0.5 in")))
sketch13.addConstraint(Sketcher.Constraint("DistanceY", -1, 1, 0, 2, Q("0.625 in")))
sketch13.addConstraint(Sketcher.Constraint("DistanceX", 0, 2, 4, 2, Q("0.125 in")))
sketch13.addConstraint(Sketcher.Constraint("DistanceX", 0, 2, -1, 1, 42.814748))
pad6 = doc.addObject("PartDesign::Pad", "Pad005")
body.addObject(pad6)
pad6.Profile = sketch13
pad6.Length = Q("2.25 in")
pad6.Reversed = True

sketch14 = doc.addObject("Sketcher::SketchObject", "Sketch013")
body.addObject(sketch14)
sketch14.AttachmentSupport = (doc.YZ_Plane, [""])
sketch14.MapMode = "FlatFace"
sketch14.AttachmentOffset = App.Placement(App.Vector(0, 0, -39.639748), App.Rotation())
sketch14.addGeometry(Part.LineSegment(App.Vector(29.8, -12.7, 0), App.Vector(22.9, -1.6, 0)), False)
sketch14.addGeometry(Part.ArcOfCircle(Part.Circle(App.Vector(25.4, 0, 0), App.Vector(0, 0, 1), 3), math.radians(148), math.radians(212)), False)
sketch14.addGeometry(Part.LineSegment(App.Vector(22.9, 1.6, 0), App.Vector(29.8, 12.7, 0)), False)
sketch14.addGeometry(Part.LineSegment(App.Vector(29.8, 12.7, 0), App.Vector(0, 12.7, 0)), False)
sketch14.addGeometry(Part.LineSegment(App.Vector(0, 12.7, 0), App.Vector(0, -12.7, 0)), False)
sketch14.addGeometry(Part.LineSegment(App.Vector(0, -12.7, 0), App.Vector(29.8, -12.7, 0)), False)
sketch14.addConstraint(Sketcher.Constraint("Tangent", 0, 2, 1, 2))
sketch14.addConstraint(Sketcher.Constraint("Tangent", 1, 1, 2, 1))
sketch14.addConstraint(Sketcher.Constraint("Coincident", 2, 2, 3, 1))
sketch14.addConstraint(Sketcher.Constraint("Coincident", 3, 2, 4, 1))
sketch14.addConstraint(Sketcher.Constraint("Coincident", 4, 2, 5, 1))
sketch14.addConstraint(Sketcher.Constraint("Coincident", 5, 2, 0, 1))
sketch14.addConstraint(Sketcher.Constraint("Horizontal", 3))
sketch14.addConstraint(Sketcher.Constraint("Vertical", 4))
sketch14.addConstraint(Sketcher.Constraint("Horizontal", 5))
sketch14.addConstraint(Sketcher.Constraint("Symmetric", 3, 2, 4, 2, -1, 1))
sketch14.addConstraint(Sketcher.Constraint("Symmetric", 0, 2, 1, 1, -1))
sketch14.addConstraint(Sketcher.Constraint("DistanceY", 4, 2, 4, 1, Q("1 in")))
sketch14.addConstraint(Sketcher.Constraint("DistanceX", -1, 1, 1, 3, Q("1 in")))
sketch14.addConstraint(Sketcher.Constraint("Radius", 1, 3.0))
sketch14.addConstraint(Sketcher.Constraint("DistanceY", 0, 2, -1, 1, Q("0.0625 in")))
pad7 = doc.addObject("PartDesign::Pad", "Pad006")
body.addObject(pad7)
pad7.Profile = sketch14
pad7.Length = Q("0.5 in")
doc.recompute()

mirrored = doc.addObject("PartDesign::Mirrored", "Mirrored")
body.addObject(mirrored)
mirrored.Originals = [pad6]
mirrored.MirrorPlane = (doc.YZ_Plane, [""])
body.Tip = mirrored

sketch15 = doc.addObject("Sketcher::SketchObject", "Sketch014")
body.addObject(sketch15)
sketch15.AttachmentSupport = (doc.YZ_Plane, [""])
sketch15.MapMode = "FlatFace"
sketch15.AttachmentOffset = App.Placement(App.Vector(0, 0, 26.939748), App.Rotation())
sketch15.addGeometry(Part.LineSegment(App.Vector(29.8, -12.7, 0), App.Vector(22.9, -1.6, 0)), False)
sketch15.addGeometry(Part.ArcOfCircle(Part.Circle(App.Vector(25.4, 0, 0), App.Vector(0, 0, 1), 3), math.radians(148), math.radians(212)), False)
sketch15.addGeometry(Part.LineSegment(App.Vector(22.9, 1.6, 0), App.Vector(29.8, 12.7, 0)), False)
sketch15.addGeometry(Part.LineSegment(App.Vector(29.8, 12.7, 0), App.Vector(0, 12.7, 0)), False)
sketch15.addGeometry(Part.LineSegment(App.Vector(0, 12.7, 0), App.Vector(0, -12.7, 0)), False)
sketch15.addGeometry(Part.LineSegment(App.Vector(0, -12.7, 0), App.Vector(29.8, -12.7, 0)), False)
sketch15.addConstraint(Sketcher.Constraint("Tangent", 0, 2, 1, 2))
sketch15.addConstraint(Sketcher.Constraint("Tangent", 1, 1, 2, 1))
sketch15.addConstraint(Sketcher.Constraint("Coincident", 2, 2, 3, 1))
sketch15.addConstraint(Sketcher.Constraint("Coincident", 3, 2, 4, 1))
sketch15.addConstraint(Sketcher.Constraint("Coincident", 4, 2, 5, 1))
sketch15.addConstraint(Sketcher.Constraint("Coincident", 5, 2, 0, 1))
sketch15.addConstraint(Sketcher.Constraint("Horizontal", 3))
sketch15.addConstraint(Sketcher.Constraint("Vertical", 4))
sketch15.addConstraint(Sketcher.Constraint("Horizontal", 5))
sketch15.addConstraint(Sketcher.Constraint("Symmetric", 3, 2, 4, 2, -1, 1))
sketch15.addConstraint(Sketcher.Constraint("Symmetric", 0, 2, 1, 1, -1))
sketch15.addConstraint(Sketcher.Constraint("DistanceY", 4, 2, 4, 1, Q("1 in")))
sketch15.addConstraint(Sketcher.Constraint("DistanceX", -1, 1, 1, 3, Q("1 in")))
sketch15.addConstraint(Sketcher.Constraint("Radius", 1, 3.0))
sketch15.addConstraint(Sketcher.Constraint("DistanceY", 0, 2, -1, 1, Q("0.0625 in")))
pad8 = doc.addObject("PartDesign::Pad", "Pad007")
body.addObject(pad8)
pad8.Profile = sketch15
pad8.Length = Q("0.5 in")

sketch16 = doc.addObject("Sketcher::SketchObject", "Sketch015")
body.addObject(sketch16)
sketch16.AttachmentSupport = (doc.YZ_Plane, [""])
sketch16.MapMode = "FlatFace"
sketch16.AttachmentOffset = App.Placement(App.Vector(0, 0, -23.764748), App.Rotation())
sketch16.addGeometry(Part.Circle(App.Vector(25.4, 0, 0), App.Vector(0, 0, 1), 3), False)
sketch16.addConstraint(Sketcher.Constraint("PointOnObject", 0, 3, -1))
sketch16.addConstraint(Sketcher.Constraint("DistanceX", -1, 1, 0, 3, Q("1 in")))
sketch16.addConstraint(Sketcher.Constraint("Diameter", 0, 6.0))
pocket6 = doc.addObject("PartDesign::Pocket", "Pocket005")
body.addObject(pocket6)
pocket6.Profile = sketch16
pocket6.Type = "ThroughAll"
pocket6.Midplane = True

doc.recompute()
